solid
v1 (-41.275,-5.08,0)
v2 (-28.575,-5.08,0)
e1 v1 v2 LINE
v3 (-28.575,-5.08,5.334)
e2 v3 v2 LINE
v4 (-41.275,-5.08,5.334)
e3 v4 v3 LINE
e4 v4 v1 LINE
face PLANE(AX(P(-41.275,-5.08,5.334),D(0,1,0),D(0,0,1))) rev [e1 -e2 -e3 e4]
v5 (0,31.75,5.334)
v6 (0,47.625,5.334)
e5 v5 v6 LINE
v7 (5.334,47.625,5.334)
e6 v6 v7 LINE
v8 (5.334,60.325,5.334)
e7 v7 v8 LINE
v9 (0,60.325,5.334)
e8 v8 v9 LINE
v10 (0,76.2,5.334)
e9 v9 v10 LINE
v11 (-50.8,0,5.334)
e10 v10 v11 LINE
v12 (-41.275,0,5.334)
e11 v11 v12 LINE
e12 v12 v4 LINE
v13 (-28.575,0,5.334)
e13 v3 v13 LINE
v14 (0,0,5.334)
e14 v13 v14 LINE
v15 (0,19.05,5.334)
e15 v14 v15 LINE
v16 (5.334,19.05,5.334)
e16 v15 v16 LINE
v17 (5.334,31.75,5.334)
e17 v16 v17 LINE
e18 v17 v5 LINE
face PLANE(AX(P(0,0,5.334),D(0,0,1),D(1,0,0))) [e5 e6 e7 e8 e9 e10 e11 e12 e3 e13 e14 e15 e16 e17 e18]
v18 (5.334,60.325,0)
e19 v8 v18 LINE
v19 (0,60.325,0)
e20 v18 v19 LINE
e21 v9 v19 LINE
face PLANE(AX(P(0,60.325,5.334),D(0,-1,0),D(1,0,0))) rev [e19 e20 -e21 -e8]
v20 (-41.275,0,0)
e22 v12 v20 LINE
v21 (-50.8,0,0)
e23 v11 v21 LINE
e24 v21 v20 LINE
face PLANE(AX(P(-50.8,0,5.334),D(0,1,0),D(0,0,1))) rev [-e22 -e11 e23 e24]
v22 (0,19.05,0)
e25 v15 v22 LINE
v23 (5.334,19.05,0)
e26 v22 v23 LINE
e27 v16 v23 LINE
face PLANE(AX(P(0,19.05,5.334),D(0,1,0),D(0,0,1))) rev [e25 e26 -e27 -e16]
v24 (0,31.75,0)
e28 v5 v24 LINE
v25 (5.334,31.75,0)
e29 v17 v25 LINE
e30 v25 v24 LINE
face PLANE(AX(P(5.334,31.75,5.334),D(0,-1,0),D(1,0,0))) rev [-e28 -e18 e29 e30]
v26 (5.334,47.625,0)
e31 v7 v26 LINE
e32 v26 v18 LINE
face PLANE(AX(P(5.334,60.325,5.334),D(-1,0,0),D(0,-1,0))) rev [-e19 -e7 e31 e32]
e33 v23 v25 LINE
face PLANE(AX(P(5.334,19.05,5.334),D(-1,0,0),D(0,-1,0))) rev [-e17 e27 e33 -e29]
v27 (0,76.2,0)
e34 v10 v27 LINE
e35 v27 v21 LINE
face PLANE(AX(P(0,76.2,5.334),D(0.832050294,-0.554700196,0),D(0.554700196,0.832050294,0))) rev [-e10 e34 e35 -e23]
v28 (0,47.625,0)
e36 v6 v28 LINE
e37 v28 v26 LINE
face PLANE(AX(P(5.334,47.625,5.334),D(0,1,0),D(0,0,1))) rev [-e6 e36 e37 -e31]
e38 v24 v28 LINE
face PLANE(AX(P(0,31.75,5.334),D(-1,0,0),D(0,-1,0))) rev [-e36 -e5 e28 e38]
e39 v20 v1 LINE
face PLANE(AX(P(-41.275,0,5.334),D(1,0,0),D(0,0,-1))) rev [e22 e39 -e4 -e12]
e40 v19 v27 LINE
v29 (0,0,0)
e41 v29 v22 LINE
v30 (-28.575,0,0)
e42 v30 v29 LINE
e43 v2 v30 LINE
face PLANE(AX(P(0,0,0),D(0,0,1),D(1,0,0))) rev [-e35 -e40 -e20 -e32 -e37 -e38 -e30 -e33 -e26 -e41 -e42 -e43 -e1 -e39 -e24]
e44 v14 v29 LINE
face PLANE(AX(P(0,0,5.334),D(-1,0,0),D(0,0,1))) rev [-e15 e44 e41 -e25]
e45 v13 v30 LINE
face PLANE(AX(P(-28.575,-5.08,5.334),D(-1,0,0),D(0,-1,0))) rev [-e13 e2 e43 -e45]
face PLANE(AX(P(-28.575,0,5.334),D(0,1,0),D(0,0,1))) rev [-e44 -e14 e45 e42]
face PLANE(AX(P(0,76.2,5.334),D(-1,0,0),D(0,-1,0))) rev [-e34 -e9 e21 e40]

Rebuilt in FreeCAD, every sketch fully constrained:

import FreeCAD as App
import Part
import Sketcher
Q = App.Units.Quantity

doc = App.newDocument("Part")
body = doc.addObject("PartDesign::Body", "Body")

sketch1 = body.newObject("Sketcher::SketchObject", "Sketch")
sketch1.AttachmentSupport = (doc.getObject("XY_Plane"), [""])
sketch1.MapMode = "FlatFace"
sketch1.addGeometry([
    Part.LineSegment(App.Vector(0, 0, 0), App.Vector(0, 19, 0)),
    Part.LineSegment(App.Vector(0, 19, 0), App.Vector(5, 19, 0)),
    Part.LineSegment(App.Vector(5, 19, 0), App.Vector(5, 32, 0)),
    Part.LineSegment(App.Vector(5, 32, 0), App.Vector(0, 32, 0)),
    Part.LineSegment(App.Vector(0, 32, 0), App.Vector(0, 48, 0)),
    Part.LineSegment(App.Vector(0, 48, 0), App.Vector(5, 48, 0)),
    Part.LineSegment(App.Vector(5, 48, 0), App.Vector(5, 60, 0)),
    Part.LineSegment(App.Vector(5, 60, 0), App.Vector(0, 60, 0)),
    Part.LineSegment(App.Vector(0, 60, 0), App.Vector(0, 76, 0)),
    Part.LineSegment(App.Vector(0, 76, 0), App.Vector(-51, 0, 0)),
    Part.LineSegment(App.Vector(-51, 0, 0), App.Vector(-41, 0, 0)),
    Part.LineSegment(App.Vector(-41, 0, 0), App.Vector(-41, -5, 0)),
    Part.LineSegment(App.Vector(-41, -5, 0), App.Vector(-29, -5, 0)),
    Part.LineSegment(App.Vector(-29, -5, 0), App.Vector(-29, 0, 0)),
    Part.LineSegment(App.Vector(-29, 0, 0), App.Vector(0, 0, 0)),
], False)
sketch1.addConstraint([
    Sketcher.Constraint("Coincident", 0, 2, 1, 1),
    Sketcher.Constraint("Coincident", 1, 2, 2, 1),
    Sketcher.Constraint("Coincident", 2, 2, 3, 1),
    Sketcher.Constraint("Coincident", 3, 2, 4, 1),
    Sketcher.Constraint("Coincident", 4, 2, 5, 1),
    Sketcher.Constraint("Coincident", 5, 2, 6, 1),
    Sketcher.Constraint("Coincident", 6, 2, 7, 1),
    Sketcher.Constraint("Coincident", 7, 2, 8, 1),
    Sketcher.Constraint("Coincident", 8, 2, 9, 1),
    Sketcher.Constraint("Coincident", 9, 2, 10, 1),
    Sketcher.Constraint("Coincident", 10, 2, 11, 1),
    Sketcher.Constraint("Coincident", 11, 2, 12, 1),
    Sketcher.Constraint("Coincident", 12, 2, 13, 1),
    Sketcher.Constraint("Coincident", 13, 2, 14, 1),
    Sketcher.Constraint("Coincident", 14, 2, 0, 1),
    Sketcher.Constraint("Vertical", 0),
    Sketcher.Constraint("Horizontal", 1),
    Sketcher.Constraint("Vertical", 2),
    Sketcher.Constraint("Horizontal", 3),
    Sketcher.Constraint("Vertical", 4),
    Sketcher.Constraint("Horizontal", 5),
    Sketcher.Constraint("Vertical", 6),
    Sketcher.Constraint("Horizontal", 7),
    Sketcher.Constraint("Vertical", 8),
    Sketcher.Constraint("Horizontal", 10),
    Sketcher.Constraint("Vertical", 11),
    Sketcher.Constraint("Horizontal", 12),
    Sketcher.Constraint("Vertical", 13),
    Sketcher.Constraint("Horizontal", 14),
    Sketcher.Constraint("Coincident", 14, 2, -1, 1),
    Sketcher.Constraint("PointOnObject", 3, 2, -2),
    Sketcher.Constraint("PointOnObject", 7, 2, -2),
    Sketcher.Constraint("PointOnObject", 9, 2, -1),
    Sketcher.Constraint("Vertical", 2, 2, 5, 2),
    Sketcher.Constraint("Equal", 12, 2),
    Sketcher.Constraint("Equal", 2, 6),
    Sketcher.Constraint("Equal", 4, 8),
    Sketcher.Constraint("DistanceX", 12, 1, 12, 2, Q("0.5 in")),
    Sketcher.Constraint("DistanceY", 11, 2, 11, 1, Q("0.2 in")),
    Sketcher.Constraint("DistanceY", -1, 1, 8, 2, Q("3 in")),
    Sketcher.Constraint("DistanceX", 9, 2, -1, 1, Q("2 in")),
    Sketcher.Constraint("DistanceX", 1, 1, 1, 2, Q("0.21 in")),
    Sketcher.Constraint("DistanceY", 0, 1, 0, 2, Q("0.75 in")),
    Sketcher.Constraint("DistanceX", 10, 1, 10, 2, Q("0.375 in")),
])
pad1 = body.newObject("PartDesign::Pad", "Pad")
pad1.Profile = sketch1
pad1.Length = Q("0.21 in")

doc.recompute()
